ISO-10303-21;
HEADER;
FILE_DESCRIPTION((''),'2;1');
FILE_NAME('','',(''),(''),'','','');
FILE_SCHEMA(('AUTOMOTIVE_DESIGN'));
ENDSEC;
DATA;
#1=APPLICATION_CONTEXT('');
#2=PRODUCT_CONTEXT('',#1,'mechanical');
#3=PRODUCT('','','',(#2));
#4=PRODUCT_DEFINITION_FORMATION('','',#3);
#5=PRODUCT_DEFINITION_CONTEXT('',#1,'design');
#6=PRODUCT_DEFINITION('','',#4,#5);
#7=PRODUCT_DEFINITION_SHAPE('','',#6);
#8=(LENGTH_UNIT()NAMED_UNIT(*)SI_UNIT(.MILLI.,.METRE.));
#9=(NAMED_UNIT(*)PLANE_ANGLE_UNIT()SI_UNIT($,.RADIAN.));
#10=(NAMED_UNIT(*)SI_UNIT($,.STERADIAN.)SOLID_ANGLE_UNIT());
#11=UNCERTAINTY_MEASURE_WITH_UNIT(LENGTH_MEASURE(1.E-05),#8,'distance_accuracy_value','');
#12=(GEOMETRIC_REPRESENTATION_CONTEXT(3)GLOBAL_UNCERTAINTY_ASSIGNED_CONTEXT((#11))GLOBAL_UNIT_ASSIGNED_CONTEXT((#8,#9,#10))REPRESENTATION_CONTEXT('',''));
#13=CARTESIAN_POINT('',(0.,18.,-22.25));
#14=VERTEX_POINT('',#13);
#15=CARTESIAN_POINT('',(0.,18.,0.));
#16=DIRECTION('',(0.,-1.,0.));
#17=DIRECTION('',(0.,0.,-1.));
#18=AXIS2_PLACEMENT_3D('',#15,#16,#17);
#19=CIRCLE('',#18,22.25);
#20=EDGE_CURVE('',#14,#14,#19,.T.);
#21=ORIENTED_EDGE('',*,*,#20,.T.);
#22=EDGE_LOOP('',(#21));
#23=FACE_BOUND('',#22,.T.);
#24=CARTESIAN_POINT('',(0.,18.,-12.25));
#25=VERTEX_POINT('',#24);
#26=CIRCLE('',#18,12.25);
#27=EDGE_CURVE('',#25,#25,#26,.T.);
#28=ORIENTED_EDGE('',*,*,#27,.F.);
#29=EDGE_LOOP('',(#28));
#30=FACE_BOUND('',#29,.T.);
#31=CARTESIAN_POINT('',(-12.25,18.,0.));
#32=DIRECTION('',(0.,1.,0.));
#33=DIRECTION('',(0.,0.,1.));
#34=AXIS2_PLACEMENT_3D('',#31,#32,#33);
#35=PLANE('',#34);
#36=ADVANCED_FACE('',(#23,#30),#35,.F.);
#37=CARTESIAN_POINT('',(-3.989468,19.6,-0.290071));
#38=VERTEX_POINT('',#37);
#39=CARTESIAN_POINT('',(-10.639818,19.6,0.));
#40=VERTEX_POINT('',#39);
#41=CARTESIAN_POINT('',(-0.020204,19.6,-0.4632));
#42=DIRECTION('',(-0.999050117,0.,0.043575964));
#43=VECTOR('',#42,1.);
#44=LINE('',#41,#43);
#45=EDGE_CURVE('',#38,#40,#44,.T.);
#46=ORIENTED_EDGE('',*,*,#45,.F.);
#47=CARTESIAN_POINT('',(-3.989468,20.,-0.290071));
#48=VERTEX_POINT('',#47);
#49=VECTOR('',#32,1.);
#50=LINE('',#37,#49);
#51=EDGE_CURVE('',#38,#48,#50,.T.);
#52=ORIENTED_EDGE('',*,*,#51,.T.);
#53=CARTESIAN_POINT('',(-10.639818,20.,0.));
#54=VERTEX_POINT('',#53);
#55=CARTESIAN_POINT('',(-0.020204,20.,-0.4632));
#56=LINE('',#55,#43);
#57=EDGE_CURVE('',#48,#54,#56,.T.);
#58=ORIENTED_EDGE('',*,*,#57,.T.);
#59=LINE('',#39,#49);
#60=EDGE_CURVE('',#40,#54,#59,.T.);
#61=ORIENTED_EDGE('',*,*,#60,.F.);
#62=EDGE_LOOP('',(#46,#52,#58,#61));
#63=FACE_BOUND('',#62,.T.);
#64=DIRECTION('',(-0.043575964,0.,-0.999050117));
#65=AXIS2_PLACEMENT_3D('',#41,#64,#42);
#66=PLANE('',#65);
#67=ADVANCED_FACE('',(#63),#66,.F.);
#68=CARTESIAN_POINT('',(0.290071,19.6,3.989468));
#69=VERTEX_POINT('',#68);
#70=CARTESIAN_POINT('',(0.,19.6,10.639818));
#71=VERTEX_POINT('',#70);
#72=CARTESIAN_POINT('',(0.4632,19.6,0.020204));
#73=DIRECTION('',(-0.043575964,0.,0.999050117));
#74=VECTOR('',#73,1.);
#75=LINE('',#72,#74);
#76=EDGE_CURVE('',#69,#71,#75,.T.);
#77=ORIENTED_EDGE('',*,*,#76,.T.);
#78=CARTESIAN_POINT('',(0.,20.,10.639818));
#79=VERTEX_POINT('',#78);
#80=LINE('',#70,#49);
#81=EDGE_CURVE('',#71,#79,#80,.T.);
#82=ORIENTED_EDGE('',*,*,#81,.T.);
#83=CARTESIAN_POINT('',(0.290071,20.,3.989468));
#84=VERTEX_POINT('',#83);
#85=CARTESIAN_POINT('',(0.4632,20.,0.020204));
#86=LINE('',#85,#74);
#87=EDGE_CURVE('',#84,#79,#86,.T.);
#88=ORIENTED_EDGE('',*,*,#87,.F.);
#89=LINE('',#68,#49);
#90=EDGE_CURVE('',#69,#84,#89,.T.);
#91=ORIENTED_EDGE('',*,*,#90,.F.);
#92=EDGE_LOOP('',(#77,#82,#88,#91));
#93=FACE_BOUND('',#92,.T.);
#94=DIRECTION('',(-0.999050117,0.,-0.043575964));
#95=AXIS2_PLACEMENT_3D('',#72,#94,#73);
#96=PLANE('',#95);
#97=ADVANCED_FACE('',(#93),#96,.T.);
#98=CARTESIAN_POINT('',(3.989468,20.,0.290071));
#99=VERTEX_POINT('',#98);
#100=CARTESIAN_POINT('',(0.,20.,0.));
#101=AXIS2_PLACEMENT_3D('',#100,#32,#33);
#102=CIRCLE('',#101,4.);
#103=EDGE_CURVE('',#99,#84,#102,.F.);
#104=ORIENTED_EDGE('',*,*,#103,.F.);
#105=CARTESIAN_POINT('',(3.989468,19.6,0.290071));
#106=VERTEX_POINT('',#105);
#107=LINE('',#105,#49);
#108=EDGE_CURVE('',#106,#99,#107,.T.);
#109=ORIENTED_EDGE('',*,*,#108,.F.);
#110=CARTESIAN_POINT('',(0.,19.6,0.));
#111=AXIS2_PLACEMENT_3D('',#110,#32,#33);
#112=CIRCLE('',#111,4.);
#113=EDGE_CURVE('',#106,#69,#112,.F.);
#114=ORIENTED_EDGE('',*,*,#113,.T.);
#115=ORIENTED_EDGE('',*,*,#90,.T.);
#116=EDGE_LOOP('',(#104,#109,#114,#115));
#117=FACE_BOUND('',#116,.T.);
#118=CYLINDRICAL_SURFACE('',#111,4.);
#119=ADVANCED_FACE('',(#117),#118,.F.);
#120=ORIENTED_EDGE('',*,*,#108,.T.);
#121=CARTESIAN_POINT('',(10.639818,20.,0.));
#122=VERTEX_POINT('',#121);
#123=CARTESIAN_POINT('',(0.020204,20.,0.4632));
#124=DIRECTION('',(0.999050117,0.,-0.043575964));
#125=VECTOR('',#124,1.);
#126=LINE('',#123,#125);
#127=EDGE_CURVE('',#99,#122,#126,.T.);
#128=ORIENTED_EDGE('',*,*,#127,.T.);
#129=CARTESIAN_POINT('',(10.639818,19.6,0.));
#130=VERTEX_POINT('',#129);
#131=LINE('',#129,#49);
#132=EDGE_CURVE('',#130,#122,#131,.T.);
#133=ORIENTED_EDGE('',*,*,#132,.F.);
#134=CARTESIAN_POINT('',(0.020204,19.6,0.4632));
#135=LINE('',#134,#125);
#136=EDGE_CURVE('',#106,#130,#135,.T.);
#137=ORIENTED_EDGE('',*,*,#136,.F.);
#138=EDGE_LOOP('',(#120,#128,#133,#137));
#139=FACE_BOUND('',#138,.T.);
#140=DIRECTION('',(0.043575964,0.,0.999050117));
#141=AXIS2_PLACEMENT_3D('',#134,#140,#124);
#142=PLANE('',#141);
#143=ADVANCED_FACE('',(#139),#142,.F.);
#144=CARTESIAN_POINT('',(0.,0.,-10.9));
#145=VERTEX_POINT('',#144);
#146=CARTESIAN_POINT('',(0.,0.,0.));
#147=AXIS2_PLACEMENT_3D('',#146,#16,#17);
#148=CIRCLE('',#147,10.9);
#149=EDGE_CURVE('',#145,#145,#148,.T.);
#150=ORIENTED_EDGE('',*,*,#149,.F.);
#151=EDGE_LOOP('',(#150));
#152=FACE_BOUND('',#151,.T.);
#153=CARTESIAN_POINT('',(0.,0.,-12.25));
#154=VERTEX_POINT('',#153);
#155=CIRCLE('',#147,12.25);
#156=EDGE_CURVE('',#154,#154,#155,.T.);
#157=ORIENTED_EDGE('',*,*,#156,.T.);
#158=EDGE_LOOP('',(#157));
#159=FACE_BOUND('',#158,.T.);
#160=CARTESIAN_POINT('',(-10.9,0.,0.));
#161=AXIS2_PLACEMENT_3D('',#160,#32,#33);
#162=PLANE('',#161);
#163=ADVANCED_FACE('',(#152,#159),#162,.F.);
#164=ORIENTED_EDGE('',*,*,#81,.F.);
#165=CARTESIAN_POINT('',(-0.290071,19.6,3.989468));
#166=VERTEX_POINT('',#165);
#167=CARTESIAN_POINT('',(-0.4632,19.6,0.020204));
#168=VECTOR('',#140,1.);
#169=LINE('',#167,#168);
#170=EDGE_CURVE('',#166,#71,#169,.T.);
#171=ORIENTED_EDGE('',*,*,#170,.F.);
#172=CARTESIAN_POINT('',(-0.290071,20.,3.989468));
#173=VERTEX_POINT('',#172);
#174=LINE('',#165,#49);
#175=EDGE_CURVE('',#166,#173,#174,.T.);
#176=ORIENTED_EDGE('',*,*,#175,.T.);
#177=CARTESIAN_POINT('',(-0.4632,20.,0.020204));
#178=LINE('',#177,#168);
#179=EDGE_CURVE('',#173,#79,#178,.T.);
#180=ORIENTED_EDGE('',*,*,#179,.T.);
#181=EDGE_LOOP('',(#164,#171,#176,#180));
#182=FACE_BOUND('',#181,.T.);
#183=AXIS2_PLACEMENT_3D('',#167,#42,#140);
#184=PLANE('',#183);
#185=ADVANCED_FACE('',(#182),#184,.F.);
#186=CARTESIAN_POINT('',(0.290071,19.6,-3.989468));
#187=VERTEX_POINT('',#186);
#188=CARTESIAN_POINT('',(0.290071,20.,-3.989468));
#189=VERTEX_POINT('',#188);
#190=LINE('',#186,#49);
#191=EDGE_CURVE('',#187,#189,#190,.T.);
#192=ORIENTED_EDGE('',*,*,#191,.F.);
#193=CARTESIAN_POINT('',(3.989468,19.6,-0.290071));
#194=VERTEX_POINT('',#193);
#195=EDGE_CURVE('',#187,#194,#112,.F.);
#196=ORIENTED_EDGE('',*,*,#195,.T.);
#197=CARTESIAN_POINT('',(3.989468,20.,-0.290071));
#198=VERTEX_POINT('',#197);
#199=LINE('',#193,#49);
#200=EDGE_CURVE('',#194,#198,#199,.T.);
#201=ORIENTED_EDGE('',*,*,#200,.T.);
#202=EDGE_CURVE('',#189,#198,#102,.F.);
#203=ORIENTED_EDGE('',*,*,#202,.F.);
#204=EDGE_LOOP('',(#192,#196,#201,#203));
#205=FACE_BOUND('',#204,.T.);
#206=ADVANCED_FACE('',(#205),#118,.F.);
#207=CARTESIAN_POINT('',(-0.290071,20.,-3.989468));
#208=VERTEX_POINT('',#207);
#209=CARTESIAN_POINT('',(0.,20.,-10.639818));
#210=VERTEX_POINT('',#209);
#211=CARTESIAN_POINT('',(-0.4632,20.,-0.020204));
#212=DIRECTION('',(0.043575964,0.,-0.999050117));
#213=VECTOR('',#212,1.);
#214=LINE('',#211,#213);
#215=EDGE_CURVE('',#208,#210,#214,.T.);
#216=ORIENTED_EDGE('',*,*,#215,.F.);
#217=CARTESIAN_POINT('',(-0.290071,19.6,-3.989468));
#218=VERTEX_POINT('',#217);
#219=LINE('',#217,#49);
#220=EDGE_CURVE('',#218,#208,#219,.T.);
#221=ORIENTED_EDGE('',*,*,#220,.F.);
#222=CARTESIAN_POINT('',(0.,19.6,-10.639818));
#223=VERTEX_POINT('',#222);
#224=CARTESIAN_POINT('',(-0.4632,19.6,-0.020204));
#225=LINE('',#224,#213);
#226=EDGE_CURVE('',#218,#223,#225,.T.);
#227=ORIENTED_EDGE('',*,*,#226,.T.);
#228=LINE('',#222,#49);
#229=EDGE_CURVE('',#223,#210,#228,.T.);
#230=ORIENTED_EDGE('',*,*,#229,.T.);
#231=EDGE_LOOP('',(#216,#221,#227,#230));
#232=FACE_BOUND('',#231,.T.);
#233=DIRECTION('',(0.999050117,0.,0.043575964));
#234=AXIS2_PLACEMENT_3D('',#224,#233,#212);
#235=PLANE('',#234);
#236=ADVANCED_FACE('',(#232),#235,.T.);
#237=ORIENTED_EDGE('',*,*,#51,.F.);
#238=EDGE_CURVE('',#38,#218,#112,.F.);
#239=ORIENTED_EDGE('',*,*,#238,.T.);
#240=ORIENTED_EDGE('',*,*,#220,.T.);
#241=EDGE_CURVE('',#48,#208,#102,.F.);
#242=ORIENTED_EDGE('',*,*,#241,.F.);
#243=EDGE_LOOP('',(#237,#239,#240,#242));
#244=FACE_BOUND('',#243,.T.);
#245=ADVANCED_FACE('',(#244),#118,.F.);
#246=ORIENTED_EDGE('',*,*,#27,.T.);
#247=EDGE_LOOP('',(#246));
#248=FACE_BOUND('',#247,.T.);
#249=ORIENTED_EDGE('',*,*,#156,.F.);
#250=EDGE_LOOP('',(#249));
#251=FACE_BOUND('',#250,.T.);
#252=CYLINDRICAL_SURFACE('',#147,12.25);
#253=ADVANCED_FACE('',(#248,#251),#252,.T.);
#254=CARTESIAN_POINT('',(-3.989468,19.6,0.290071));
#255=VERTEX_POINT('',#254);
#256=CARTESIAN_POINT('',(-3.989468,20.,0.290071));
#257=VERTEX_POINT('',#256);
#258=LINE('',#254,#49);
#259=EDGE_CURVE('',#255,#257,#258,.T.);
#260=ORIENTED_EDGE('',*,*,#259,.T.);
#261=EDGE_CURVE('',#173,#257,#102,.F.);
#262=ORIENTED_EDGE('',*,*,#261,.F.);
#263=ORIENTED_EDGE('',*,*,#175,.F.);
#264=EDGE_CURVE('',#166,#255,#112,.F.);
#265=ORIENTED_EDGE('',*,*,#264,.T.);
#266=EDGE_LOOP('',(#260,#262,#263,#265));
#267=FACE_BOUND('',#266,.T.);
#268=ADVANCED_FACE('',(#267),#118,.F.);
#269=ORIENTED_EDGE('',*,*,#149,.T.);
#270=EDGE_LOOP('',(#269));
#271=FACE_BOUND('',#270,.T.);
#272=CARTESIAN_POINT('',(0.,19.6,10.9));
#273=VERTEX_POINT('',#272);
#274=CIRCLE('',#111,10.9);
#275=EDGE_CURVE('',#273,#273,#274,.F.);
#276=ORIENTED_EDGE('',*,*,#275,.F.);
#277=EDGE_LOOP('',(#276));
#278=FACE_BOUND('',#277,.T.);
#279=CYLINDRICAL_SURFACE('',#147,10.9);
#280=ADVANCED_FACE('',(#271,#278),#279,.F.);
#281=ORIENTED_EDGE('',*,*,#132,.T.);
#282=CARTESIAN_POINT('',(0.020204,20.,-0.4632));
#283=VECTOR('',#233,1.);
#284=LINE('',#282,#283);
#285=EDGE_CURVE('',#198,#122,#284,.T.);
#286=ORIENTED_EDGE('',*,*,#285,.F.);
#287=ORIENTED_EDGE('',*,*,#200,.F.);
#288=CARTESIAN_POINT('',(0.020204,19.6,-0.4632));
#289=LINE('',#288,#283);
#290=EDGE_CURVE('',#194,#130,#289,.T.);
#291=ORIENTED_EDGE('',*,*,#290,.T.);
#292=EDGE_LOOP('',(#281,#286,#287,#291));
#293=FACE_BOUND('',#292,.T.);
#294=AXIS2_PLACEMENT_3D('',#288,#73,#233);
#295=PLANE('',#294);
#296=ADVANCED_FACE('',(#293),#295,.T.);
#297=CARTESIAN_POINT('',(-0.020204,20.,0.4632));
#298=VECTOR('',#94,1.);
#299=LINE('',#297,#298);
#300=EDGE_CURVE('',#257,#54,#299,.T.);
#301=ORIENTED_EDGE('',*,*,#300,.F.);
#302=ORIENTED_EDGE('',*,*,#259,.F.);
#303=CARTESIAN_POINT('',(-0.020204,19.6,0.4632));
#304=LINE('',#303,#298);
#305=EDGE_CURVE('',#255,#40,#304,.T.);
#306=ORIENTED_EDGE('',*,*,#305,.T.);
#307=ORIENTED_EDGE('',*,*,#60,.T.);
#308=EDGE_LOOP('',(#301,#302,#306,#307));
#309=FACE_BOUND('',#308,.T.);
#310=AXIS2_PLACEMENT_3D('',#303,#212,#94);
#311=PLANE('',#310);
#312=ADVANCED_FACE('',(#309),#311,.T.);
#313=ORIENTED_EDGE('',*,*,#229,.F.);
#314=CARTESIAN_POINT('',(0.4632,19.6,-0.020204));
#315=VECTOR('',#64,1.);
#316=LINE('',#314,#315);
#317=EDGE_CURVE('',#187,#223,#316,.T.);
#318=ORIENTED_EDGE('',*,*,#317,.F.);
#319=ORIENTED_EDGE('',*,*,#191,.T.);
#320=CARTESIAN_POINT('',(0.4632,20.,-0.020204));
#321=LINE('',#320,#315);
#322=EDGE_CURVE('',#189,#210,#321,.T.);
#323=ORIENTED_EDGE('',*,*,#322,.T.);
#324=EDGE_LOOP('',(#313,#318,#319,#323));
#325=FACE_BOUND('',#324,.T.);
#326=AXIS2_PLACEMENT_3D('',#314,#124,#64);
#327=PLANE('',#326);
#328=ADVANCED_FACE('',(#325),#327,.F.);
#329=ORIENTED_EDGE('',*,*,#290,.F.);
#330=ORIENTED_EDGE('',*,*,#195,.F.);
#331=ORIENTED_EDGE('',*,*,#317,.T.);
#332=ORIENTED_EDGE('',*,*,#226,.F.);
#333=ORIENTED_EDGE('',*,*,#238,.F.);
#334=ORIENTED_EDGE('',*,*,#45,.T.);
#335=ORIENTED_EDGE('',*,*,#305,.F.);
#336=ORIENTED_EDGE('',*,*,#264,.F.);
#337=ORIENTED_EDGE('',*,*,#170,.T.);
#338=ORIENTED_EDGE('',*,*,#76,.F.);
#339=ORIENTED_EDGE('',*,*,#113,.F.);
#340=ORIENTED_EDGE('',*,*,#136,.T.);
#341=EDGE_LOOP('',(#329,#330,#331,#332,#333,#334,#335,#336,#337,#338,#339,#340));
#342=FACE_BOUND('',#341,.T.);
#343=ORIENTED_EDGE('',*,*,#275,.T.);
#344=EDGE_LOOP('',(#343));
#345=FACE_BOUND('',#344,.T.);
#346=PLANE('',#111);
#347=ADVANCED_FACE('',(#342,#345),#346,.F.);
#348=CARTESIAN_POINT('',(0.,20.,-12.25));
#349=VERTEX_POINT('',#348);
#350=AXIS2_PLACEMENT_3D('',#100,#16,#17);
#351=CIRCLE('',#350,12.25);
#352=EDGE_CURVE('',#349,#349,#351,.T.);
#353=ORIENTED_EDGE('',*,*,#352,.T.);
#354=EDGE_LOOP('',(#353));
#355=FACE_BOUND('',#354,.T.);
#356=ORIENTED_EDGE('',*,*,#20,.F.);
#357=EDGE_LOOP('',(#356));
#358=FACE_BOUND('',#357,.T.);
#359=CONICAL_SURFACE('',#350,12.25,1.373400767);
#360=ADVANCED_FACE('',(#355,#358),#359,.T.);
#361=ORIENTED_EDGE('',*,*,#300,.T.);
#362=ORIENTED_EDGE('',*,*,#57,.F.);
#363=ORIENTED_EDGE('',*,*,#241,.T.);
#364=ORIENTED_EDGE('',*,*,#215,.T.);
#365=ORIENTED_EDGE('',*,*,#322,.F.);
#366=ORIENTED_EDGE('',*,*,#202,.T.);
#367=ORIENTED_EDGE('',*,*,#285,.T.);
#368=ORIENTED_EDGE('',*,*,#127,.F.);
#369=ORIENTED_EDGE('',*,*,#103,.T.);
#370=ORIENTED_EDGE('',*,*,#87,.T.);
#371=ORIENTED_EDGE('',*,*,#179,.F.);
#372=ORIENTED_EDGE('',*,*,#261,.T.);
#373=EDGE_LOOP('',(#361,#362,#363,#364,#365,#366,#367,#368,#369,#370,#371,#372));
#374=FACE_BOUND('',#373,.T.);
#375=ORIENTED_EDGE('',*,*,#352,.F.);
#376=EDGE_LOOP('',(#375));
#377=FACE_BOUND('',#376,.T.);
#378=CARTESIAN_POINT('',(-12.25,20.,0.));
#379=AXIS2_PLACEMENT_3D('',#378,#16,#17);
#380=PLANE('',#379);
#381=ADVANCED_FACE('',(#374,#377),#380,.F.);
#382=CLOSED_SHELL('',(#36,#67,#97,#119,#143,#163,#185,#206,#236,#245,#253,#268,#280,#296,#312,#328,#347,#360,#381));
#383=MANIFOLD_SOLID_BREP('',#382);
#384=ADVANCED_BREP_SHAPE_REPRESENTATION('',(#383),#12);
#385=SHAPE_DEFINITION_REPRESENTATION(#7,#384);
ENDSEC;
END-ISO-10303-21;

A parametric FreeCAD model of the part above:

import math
import FreeCAD as App
import Part
import Sketcher
from FreeCAD import Vector
Q = App.Units.Quantity

doc = App.newDocument("Part")
body = doc.addObject("PartDesign::Body", "Body")

sketch1 = doc.addObject("Sketcher::SketchObject", "Sketch")
body.addObject(sketch1)
sketch1.AttachmentSupport = (doc.XY_Plane, [""])
sketch1.MapMode = "FlatFace"
sketch1.addGeometry([
    Part.LineSegment(Vector(-10.9, 0, 0), Vector(-10.9, 20, 0)),
    Part.LineSegment(Vector(-10.9, 20, 0), Vector(-12.25, 20, 0)),
    Part.LineSegment(Vector(-12.25, 20, 0), Vector(-22.25, 18, 0)),
    Part.LineSegment(Vector(-22.25, 18, 0), Vector(-12.25, 18, 0)),
    Part.LineSegment(Vector(-12.25, 18, 0), Vector(-12.25, 0, 0)),
    Part.LineSegment(Vector(-12.25, 0, 0), Vector(-10.9, 0, 0)),
], False)
sketch1.addConstraint([
    Sketcher.Constraint("Coincident", 0, 2, 1, 1),
    Sketcher.Constraint("Coincident", 1, 2, 2, 1),
    Sketcher.Constraint("Coincident", 2, 2, 3, 1),
    Sketcher.Constraint("Coincident", 3, 2, 4, 1),
    Sketcher.Constraint("Coincident", 4, 2, 5, 1),
    Sketcher.Constraint("Coincident", 5, 2, 0, 1),
    Sketcher.Constraint("Vertical", 0),
    Sketcher.Constraint("Horizontal", 1),
    Sketcher.Constraint("Horizontal", 3),
    Sketcher.Constraint("Vertical", 4),
    Sketcher.Constraint("Horizontal", 5),
    Sketcher.Constraint("PointOnObject", 4, 2, -1),
    Sketcher.Constraint("Vertical", 1, 2, 3, 2),
    Sketcher.Constraint("DistanceX", 3, 1, 3, 2, Q("10 mm")),
    Sketcher.Constraint("DistanceY", 0, 1, 0, 2, Q("20 mm")),
    Sketcher.Constraint("DistanceY", 4, 2, 4, 1, Q("18 mm")),
    Sketcher.Constraint("DistanceX", 1, 2, 1, 1, Q("1.35 mm")),
    Sketcher.Constraint("DistanceX", 0, 2, -1, 1, Q("10.9 mm")),
])
revolution = doc.addObject("PartDesign::Revolution", "Revolution")
body.addObject(revolution)
revolution.Profile = sketch1
revolution.ReferenceAxis = (sketch1, ["V_Axis"])
revolution.Angle = 360

sketch2 = doc.addObject("Sketcher::SketchObject", "Sketch001")
body.addObject(sketch2)
sketch2.AttachmentSupport = (doc.XZ_Plane, [""])
sketch2.MapMode = "FlatFace"
sketch2.AttachmentOffset = App.Placement(Vector(0, 0, -20), App.Rotation())
sketch2.addGeometry([
    Part.ArcOfCircle(Part.Circle(Vector(0, 0, 0), Vector(0, 0, 1), 10.9), math.radians(0), math.radians(90)),
    Part.ArcOfCircle(Part.Circle(Vector(0, 0, 0), Vector(0, 0, 1), 10.9), math.radians(-90), math.radians(0)),
    Part.ArcOfCircle(Part.Circle(Vector(0, 0, 0), Vector(0, 0, 1), 10.9), math.radians(180), math.radians(270)),
    Part.ArcOfCircle(Part.Circle(Vector(0, 0, 0), Vector(0, 0, 1), 10.9), math.radians(90), math.radians(180)),
    Part.LineSegment(Vector(0.290071, 3.989468, 0), Vector(0, 10.639818, 0)),
    Part.LineSegment(Vector(0, 10.639818, 0), Vector(-0.290071, 3.989468, 0)),
    Part.ArcOfCircle(Part.Circle(Vector(0, 0, 0), Vector(0, 0, 1), 4), math.radians(94.15861), math.radians(175.84139)),
    Part.LineSegment(Vector(-3.989468, 0.290071, 0), Vector(-10.639818, 0, 0)),
    Part.LineSegment(Vector(-10.639818, 0, 0), Vector(-3.989468, -0.290071, 0)),
    Part.ArcOfCircle(Part.Circle(Vector(0, 0, 0), Vector(0, 0, 1), 4), math.radians(-175.84139), math.radians(-94.15861)),
    Part.LineSegment(Vector(-0.290071, -3.989468, 0), Vector(0, -10.639818, 0)),
    Part.LineSegment(Vector(0, -10.639818, 0), Vector(0.290071, -3.989468, 0)),
    Part.ArcOfCircle(Part.Circle(Vector(0, 0, 0), Vector(0, 0, 1), 4), math.radians(-85.84139), math.radians(-4.15861)),
    Part.LineSegment(Vector(3.989468, -0.290071, 0), Vector(10.639818, 0, 0)),
    Part.LineSegment(Vector(10.639818, 0, 0), Vector(3.989468, 0.290071, 0)),
    Part.ArcOfCircle(Part.Circle(Vector(0, 0, 0), Vector(0, 0, 1), 4), math.radians(4.15861), math.radians(85.84139)),
], False)
sketch2.addConstraint([
    Sketcher.Constraint("Tangent", 0, 1, 1, 2),
    Sketcher.Constraint("Tangent", 1, 1, 2, 2),
    Sketcher.Constraint("Tangent", 2, 1, 3, 2),
    Sketcher.Constraint("Tangent", 3, 1, 0, 2),
    Sketcher.Constraint("Coincident", 4, 2, 5, 1),
    Sketcher.Constraint("Coincident", 5, 2, 6, 1),
    Sketcher.Constraint("Coincident", 6, 2, 7, 1),
    Sketcher.Constraint("Coincident", 7, 2, 8, 1),
    Sketcher.Constraint("Coincident", 8, 2, 9, 1),
    Sketcher.Constraint("Coincident", 9, 2, 10, 1),
    Sketcher.Constraint("Coincident", 10, 2, 11, 1),
    Sketcher.Constraint("Coincident", 11, 2, 12, 1),
    Sketcher.Constraint("Coincident", 12, 2, 13, 1),
    Sketcher.Constraint("Coincident", 13, 2, 14, 1),
    Sketcher.Constraint("Coincident", 14, 2, 15, 1),
    Sketcher.Constraint("Coincident", 15, 2, 4, 1),
    Sketcher.Constraint("Coincident", 0, 3, -1, 1),
    Sketcher.Constraint("Coincident", 6, 3, -1, 1),
    Sketcher.Constraint("Coincident", 9, 3, -1, 1),
    Sketcher.Constraint("Coincident", 12, 3, -1, 1),
    Sketcher.Constraint("Coincident", 15, 3, -1, 1),
    Sketcher.Constraint("Equal", 0, 1),
    Sketcher.Constraint("Equal", 6, 9),
    Sketcher.Constraint("Equal", 9, 12),
    Sketcher.Constraint("Equal", 12, 15),
    Sketcher.Constraint("Symmetric", 4, 2, 10, 2, -1, 1),
    Sketcher.Constraint("Symmetric", 7, 2, 13, 2, -1, 1),
    Sketcher.Constraint("PointOnObject", 0, 1, -1),
    Sketcher.Constraint("PointOnObject", 1, 1, -2),
    Sketcher.Constraint("PointOnObject", 2, 1, -1),
    Sketcher.Constraint("PointOnObject", 3, 1, -2),
    Sketcher.Constraint("PointOnObject", 4, 2, -2),
    Sketcher.Constraint("PointOnObject", 7, 2, -1),
    Sketcher.Constraint("Perpendicular", 4, 7),
    Sketcher.Constraint("Perpendicular", 5, 8),
    Sketcher.Constraint("Perpendicular", 7, 10),
    Sketcher.Constraint("Perpendicular", 8, 11),
    Sketcher.Constraint("Perpendicular", 10, 13),
    Sketcher.Constraint("Perpendicular", 11, 14),
    Sketcher.Constraint("Horizontal", 9, 2, 11, 2),
    Sketcher.Constraint("Equal", 5, 7),
    Sketcher.Constraint("Radius", 6, Q("4 mm")),
    Sketcher.Constraint("Radius", 0, Q("10.9 mm")),
    Sketcher.Constraint("DistanceX", 5, 2, -1, 1, Q("0.290071 mm")),
    Sketcher.Constraint("DistanceX", 7, 2, 6, 2, Q("6.650349 mm")),
])
pad1 = doc.addObject("PartDesign::Pad", "Pad")
body.addObject(pad1)
pad1.Profile = sketch2
pad1.Length = 0.4

doc.recompute()
